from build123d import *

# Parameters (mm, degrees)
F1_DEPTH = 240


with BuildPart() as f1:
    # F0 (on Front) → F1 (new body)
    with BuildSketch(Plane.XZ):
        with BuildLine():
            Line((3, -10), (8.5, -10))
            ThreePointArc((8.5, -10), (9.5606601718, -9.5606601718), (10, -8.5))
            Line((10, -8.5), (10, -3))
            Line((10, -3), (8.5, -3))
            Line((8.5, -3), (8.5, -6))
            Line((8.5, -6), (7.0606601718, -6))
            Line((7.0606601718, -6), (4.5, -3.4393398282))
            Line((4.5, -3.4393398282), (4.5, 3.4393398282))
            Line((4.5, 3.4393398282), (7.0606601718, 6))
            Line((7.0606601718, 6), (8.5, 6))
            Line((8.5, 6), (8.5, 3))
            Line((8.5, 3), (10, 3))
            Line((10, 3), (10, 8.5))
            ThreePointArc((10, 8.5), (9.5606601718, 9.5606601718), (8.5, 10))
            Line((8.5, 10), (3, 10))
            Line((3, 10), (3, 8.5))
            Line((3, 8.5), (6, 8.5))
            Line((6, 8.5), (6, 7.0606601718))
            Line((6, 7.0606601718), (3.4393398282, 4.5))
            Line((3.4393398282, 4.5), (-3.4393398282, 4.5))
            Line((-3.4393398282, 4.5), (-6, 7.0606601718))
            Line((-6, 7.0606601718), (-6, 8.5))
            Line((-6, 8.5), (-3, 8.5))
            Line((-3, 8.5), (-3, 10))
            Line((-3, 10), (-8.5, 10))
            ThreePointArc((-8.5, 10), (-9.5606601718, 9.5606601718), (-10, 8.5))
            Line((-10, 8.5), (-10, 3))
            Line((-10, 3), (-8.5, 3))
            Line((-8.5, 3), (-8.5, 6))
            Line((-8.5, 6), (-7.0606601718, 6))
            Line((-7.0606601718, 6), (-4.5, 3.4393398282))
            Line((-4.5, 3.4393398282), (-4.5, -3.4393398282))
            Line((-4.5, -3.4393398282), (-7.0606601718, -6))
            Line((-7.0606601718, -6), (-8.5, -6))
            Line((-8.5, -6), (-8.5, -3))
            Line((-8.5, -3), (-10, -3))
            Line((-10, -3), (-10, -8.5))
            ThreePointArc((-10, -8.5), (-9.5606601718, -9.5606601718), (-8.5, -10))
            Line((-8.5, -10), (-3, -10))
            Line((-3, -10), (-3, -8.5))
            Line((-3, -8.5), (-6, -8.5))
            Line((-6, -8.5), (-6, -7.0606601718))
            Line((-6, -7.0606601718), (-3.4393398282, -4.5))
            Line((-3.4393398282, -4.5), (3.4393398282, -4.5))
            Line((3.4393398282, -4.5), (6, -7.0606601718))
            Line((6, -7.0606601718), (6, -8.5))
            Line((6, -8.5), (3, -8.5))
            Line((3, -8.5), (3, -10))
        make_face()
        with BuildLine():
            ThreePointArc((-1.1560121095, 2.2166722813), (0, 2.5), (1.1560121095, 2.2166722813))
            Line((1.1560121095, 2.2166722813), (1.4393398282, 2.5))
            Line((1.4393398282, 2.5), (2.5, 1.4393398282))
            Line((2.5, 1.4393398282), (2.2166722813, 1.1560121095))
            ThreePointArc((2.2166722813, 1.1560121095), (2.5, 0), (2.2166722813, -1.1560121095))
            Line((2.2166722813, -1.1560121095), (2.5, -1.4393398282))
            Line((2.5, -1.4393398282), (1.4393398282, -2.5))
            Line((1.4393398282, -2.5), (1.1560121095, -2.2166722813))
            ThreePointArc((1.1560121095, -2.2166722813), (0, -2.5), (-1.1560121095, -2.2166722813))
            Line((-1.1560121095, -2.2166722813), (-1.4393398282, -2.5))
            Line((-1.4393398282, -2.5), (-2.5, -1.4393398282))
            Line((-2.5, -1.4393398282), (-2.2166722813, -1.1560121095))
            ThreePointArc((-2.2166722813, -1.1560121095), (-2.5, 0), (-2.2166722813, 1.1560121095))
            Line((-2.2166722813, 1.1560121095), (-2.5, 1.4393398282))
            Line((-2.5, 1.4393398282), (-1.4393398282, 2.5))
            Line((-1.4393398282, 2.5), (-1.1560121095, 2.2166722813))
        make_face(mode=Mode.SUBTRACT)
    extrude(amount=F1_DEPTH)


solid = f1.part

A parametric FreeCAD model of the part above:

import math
import FreeCAD as App
import Part
import Sketcher

V = App.Vector
Q = App.Units.Quantity

doc = App.newDocument("Part")
body = doc.addObject("PartDesign::Body", "Body")

# Sketch on XZ plane
sketch1 = body.newObject("Sketcher::SketchObject", "Sketch")
sketch1.AttachmentSupport = (doc.getObject("XZ_Plane"), [""])
sketch1.MapMode = "FlatFace"
sketch1.addGeometry([
    Part.LineSegment(V(3, -10, 0), V(8.5, -10, 0)),  # 0
    Part.ArcOfCircle(Part.Circle(V(8.5, -8.5, 0), V(0, 0, 1), 1.5), math.radians(-90), math.radians(0)),  # 1
    Part.LineSegment(V(10, -8.5, 0), V(10, -3, 0)),  # 2
    Part.LineSegment(V(10, -3, 0), V(8.5, -3, 0)),  # 3
    Part.LineSegment(V(8.5, -3, 0), V(8.5, -6, 0)),  # 4
    Part.LineSegment(V(8.5, -6, 0), V(7.06, -6, 0)),  # 5
    Part.LineSegment(V(7.06, -6, 0), V(4.5, -3.44, 0)),  # 6
    Part.LineSegment(V(4.5, -3.44, 0), V(4.5, 3.44, 0)),  # 7
    Part.LineSegment(V(4.5, 3.44, 0), V(7.06, 6, 0)),  # 8
    Part.LineSegment(V(7.06, 6, 0), V(8.5, 6, 0)),  # 9
    Part.LineSegment(V(8.5, 6, 0), V(8.5, 3, 0)),  # 10
    Part.LineSegment(V(8.5, 3, 0), V(10, 3, 0)),  # 11
    Part.LineSegment(V(10, 3, 0), V(10, 8.5, 0)),  # 12
    Part.ArcOfCircle(Part.Circle(V(8.5, 8.5, 0), V(0, 0, 1), 1.5), math.radians(0), math.radians(90)),  # 13
    Part.LineSegment(V(8.5, 10, 0), V(3, 10, 0)),  # 14
    Part.LineSegment(V(3, 10, 0), V(3, 8.5, 0)),  # 15
    Part.LineSegment(V(3, 8.5, 0), V(6, 8.5, 0)),  # 16
    Part.LineSegment(V(6, 8.5, 0), V(6, 7.06, 0)),  # 17
    Part.LineSegment(V(6, 7.06, 0), V(3.44, 4.5, 0)),  # 18
    Part.LineSegment(V(3.44, 4.5, 0), V(-3.44, 4.5, 0)),  # 19
    Part.LineSegment(V(-3.44, 4.5, 0), V(-6, 7.06, 0)),  # 20
    Part.LineSegment(V(-6, 7.06, 0), V(-6, 8.5, 0)),  # 21
    Part.LineSegment(V(-6, 8.5, 0), V(-3, 8.5, 0)),  # 22
    Part.LineSegment(V(-3, 8.5, 0), V(-3, 10, 0)),  # 23
    Part.LineSegment(V(-3, 10, 0), V(-8.5, 10, 0)),  # 24
    Part.ArcOfCircle(Part.Circle(V(-8.5, 8.5, 0), V(0, 0, 1), 1.5), math.radians(90), math.radians(180)),  # 25
    Part.LineSegment(V(-10, 8.5, 0), V(-10, 3, 0)),  # 26
    Part.LineSegment(V(-10, 3, 0), V(-8.5, 3, 0)),  # 27
    Part.LineSegment(V(-8.5, 3, 0), V(-8.5, 6, 0)),  # 28
    Part.LineSegment(V(-8.5, 6, 0), V(-7.06, 6, 0)),  # 29
    Part.LineSegment(V(-7.06, 6, 0), V(-4.5, 3.44, 0)),  # 30
    Part.LineSegment(V(-4.5, 3.44, 0), V(-4.5, -3.44, 0)),  # 31
    Part.LineSegment(V(-4.5, -3.44, 0), V(-7.06, -6, 0)),  # 32
    Part.LineSegment(V(-7.06, -6, 0), V(-8.5, -6, 0)),  # 33
    Part.LineSegment(V(-8.5, -6, 0), V(-8.5, -3, 0)),  # 34
    Part.LineSegment(V(-8.5, -3, 0), V(-10, -3, 0)),  # 35
    Part.LineSegment(V(-10, -3, 0), V(-10, -8.5, 0)),  # 36
    Part.ArcOfCircle(Part.Circle(V(-8.5, -8.5, 0), V(0, 0, 1), 1.5), math.radians(180), math.radians(270)),  # 37
    Part.LineSegment(V(-8.5, -10, 0), V(-3, -10, 0)),  # 38
    Part.LineSegment(V(-3, -10, 0), V(-3, -8.5, 0)),  # 39
    Part.LineSegment(V(-3, -8.5, 0), V(-6, -8.5, 0)),  # 40
    Part.LineSegment(V(-6, -8.5, 0), V(-6, -7.06, 0)),  # 41
    Part.LineSegment(V(-6, -7.06, 0), V(-3.44, -4.5, 0)),  # 42
    Part.LineSegment(V(-3.44, -4.5, 0), V(3.44, -4.5, 0)),  # 43
    Part.LineSegment(V(3.44, -4.5, 0), V(6, -7.06, 0)),  # 44
    Part.LineSegment(V(6, -7.06, 0), V(6, -8.5, 0)),  # 45
    Part.LineSegment(V(6, -8.5, 0), V(3, -8.5, 0)),  # 46
    Part.LineSegment(V(3, -8.5, 0), V(3, -10, 0)),  # 47
    Part.LineSegment(V(-1.44, 2.5, 0), V(-1.16, 2.22, 0)),  # 48
    Part.ArcOfCircle(Part.Circle(V(0, 0, 0), V(0, 0, 1), 2.5), math.radians(62), math.radians(118)),  # 49
    Part.LineSegment(V(1.16, 2.22, 0), V(1.44, 2.5, 0)),  # 50
    Part.LineSegment(V(1.44, 2.5, 0), V(2.5, 1.44, 0)),  # 51
    Part.LineSegment(V(2.5, 1.44, 0), V(2.22, 1.16, 0)),  # 52
    Part.ArcOfCircle(Part.Circle(V(0, 0, 0), V(0, 0, 1), 2.5), math.radians(-28), math.radians(28)),  # 53
    Part.LineSegment(V(2.22, -1.16, 0), V(2.5, -1.44, 0)),  # 54
    Part.LineSegment(V(2.5, -1.44, 0), V(1.44, -2.5, 0)),  # 55
    Part.LineSegment(V(1.44, -2.5, 0), V(1.16, -2.22, 0)),  # 56
    Part.ArcOfCircle(Part.Circle(V(0, 0, 0), V(0, 0, 1), 2.5), math.radians(-118), math.radians(-62)),  # 57
    Part.LineSegment(V(-1.16, -2.22, 0), V(-1.44, -2.5, 0)),  # 58
    Part.LineSegment(V(-1.44, -2.5, 0), V(-2.5, -1.44, 0)),  # 59
    Part.LineSegment(V(-2.5, -1.44, 0), V(-2.22, -1.16, 0)),  # 60
    Part.ArcOfCircle(Part.Circle(V(0, 0, 0), V(0, 0, 1), 2.5), math.radians(152), math.radians(208)),  # 61
    Part.LineSegment(V(-2.22, 1.16, 0), V(-2.5, 1.44, 0)),  # 62
    Part.LineSegment(V(-2.5, 1.44, 0), V(-1.44, 2.5, 0)),  # 63
], False)
sketch1.addConstraint([
    Sketcher.Constraint("Tangent", 0, 2, 1, 1),
    Sketcher.Constraint("Tangent", 1, 2, 2, 1),
    Sketcher.Constraint("Coincident", 2, 2, 3, 1),
    Sketcher.Constraint("Coincident", 3, 2, 4, 1),
    Sketcher.Constraint("Coincident", 4, 2, 5, 1),
    Sketcher.Constraint("Coincident", 5, 2, 6, 1),
    Sketcher.Constraint("Coincident", 6, 2, 7, 1),
    Sketcher.Constraint("Coincident", 7, 2, 8, 1),
    Sketcher.Constraint("Coincident", 8, 2, 9, 1),
    Sketcher.Constraint("Coincident", 9, 2, 10, 1),
    Sketcher.Constraint("Coincident", 10, 2, 11, 1),
    Sketcher.Constraint("Coincident", 11, 2, 12, 1),
    Sketcher.Constraint("Tangent", 12, 2, 13, 1),
    Sketcher.Constraint("Tangent", 13, 2, 14, 1),
    Sketcher.Constraint("Coincident", 14, 2, 15, 1),
    Sketcher.Constraint("Coincident", 15, 2, 16, 1),
    Sketcher.Constraint("Coincident", 16, 2, 17, 1),
    Sketcher.Constraint("Coincident", 17, 2, 18, 1),
    Sketcher.Constraint("Coincident", 18, 2, 19, 1),
    Sketcher.Constraint("Coincident", 19, 2, 20, 1),
    Sketcher.Constraint("Coincident", 20, 2, 21, 1),
    Sketcher.Constraint("Coincident", 21, 2, 22, 1),
    Sketcher.Constraint("Coincident", 22, 2, 23, 1),
    Sketcher.Constraint("Coincident", 23, 2, 24, 1),
    Sketcher.Constraint("Tangent", 24, 2, 25, 1),
    Sketcher.Constraint("Tangent", 25, 2, 26, 1),
    Sketcher.Constraint("Coincident", 26, 2, 27, 1),
    Sketcher.Constraint("Coincident", 27, 2, 28, 1),
    Sketcher.Constraint("Coincident", 28, 2, 29, 1),
    Sketcher.Constraint("Coincident", 29, 2, 30, 1),
    Sketcher.Constraint("Coincident", 30, 2, 31, 1),
    Sketcher.Constraint("Coincident", 31, 2, 32, 1),
    Sketcher.Constraint("Coincident", 32, 2, 33, 1),
    Sketcher.Constraint("Coincident", 33, 2, 34, 1),
    Sketcher.Constraint("Coincident", 34, 2, 35, 1),
    Sketcher.Constraint("Coincident", 35, 2, 36, 1),
    Sketcher.Constraint("Tangent", 36, 2, 37, 1),
    Sketcher.Constraint("Tangent", 37, 2, 38, 1),
    Sketcher.Constraint("Coincident", 38, 2, 39, 1),
    Sketcher.Constraint("Coincident", 39, 2, 40, 1),
    Sketcher.Constraint("Coincident", 40, 2, 41, 1),
    Sketcher.Constraint("Coincident", 41, 2, 42, 1),
    Sketcher.Constraint("Coincident", 42, 2, 43, 1),
    Sketcher.Constraint("Coincident", 43, 2, 44, 1),
    Sketcher.Constraint("Coincident", 44, 2, 45, 1),
    Sketcher.Constraint("Coincident", 45, 2, 46, 1),
    Sketcher.Constraint("Coincident", 46, 2, 47, 1),
    Sketcher.Constraint("Coincident", 47, 2, 0, 1),
    Sketcher.Constraint("Coincident", 48, 2, 49, 2),
    Sketcher.Constraint("Coincident", 49, 1, 50, 1),
    Sketcher.Constraint("Coincident", 50, 2, 51, 1),
    Sketcher.Constraint("Coincident", 51, 2, 52, 1),
    Sketcher.Constraint("Coincident", 52, 2, 53, 2),
    Sketcher.Constraint("Coincident", 53, 1, 54, 1),
    Sketcher.Constraint("Coincident", 54, 2, 55, 1),
    Sketcher.Constraint("Coincident", 55, 2, 56, 1),
    Sketcher.Constraint("Coincident", 56, 2, 57, 2),
    Sketcher.Constraint("Coincident", 57, 1, 58, 1),
    Sketcher.Constraint("Coincident", 58, 2, 59, 1),
    Sketcher.Constraint("Coincident", 59, 2, 60, 1),
    Sketcher.Constraint("Coincident", 60, 2, 61, 2),
    Sketcher.Constraint("Coincident", 61, 1, 62, 1),
    Sketcher.Constraint("Coincident", 62, 2, 63, 1),
    Sketcher.Constraint("Coincident", 63, 2, 48, 1),
    Sketcher.Constraint("Horizontal", 0),
    Sketcher.Constraint("Vertical", 2),
    Sketcher.Constraint("Horizontal", 3),
    Sketcher.Constraint("Vertical", 4),
    Sketcher.Constraint("Horizontal", 5),
    Sketcher.Constraint("Vertical", 7),
    Sketcher.Constraint("Horizontal", 9),
    Sketcher.Constraint("Vertical", 10),
    Sketcher.Constraint("Horizontal", 11),
    Sketcher.Constraint("Vertical", 12),
    Sketcher.Constraint("Horizontal", 14),
    Sketcher.Constraint("Vertical", 15),
    Sketcher.Constraint("Horizontal", 16),
    Sketcher.Constraint("Vertical", 17),
    Sketcher.Constraint("Horizontal", 19),
    Sketcher.Constraint("Vertical", 21),
    Sketcher.Constraint("Horizontal", 22),
    Sketcher.Constraint("Vertical", 23),
    Sketcher.Constraint("Horizontal", 24),
    Sketcher.Constraint("Vertical", 26),
    Sketcher.Constraint("Horizontal", 27),
    Sketcher.Constraint("Vertical", 28),
    Sketcher.Constraint("Horizontal", 29),
    Sketcher.Constraint("Vertical", 31),
    Sketcher.Constraint("Horizontal", 33),
    Sketcher.Constraint("Vertical", 34),
    Sketcher.Constraint("Horizontal", 35),
    Sketcher.Constraint("Vertical", 36),
    Sketcher.Constraint("Horizontal", 38),
    Sketcher.Constraint("Vertical", 39),
    Sketcher.Constraint("Horizontal", 40),
    Sketcher.Constraint("Vertical", 41),
    Sketcher.Constraint("Horizontal", 43),
    Sketcher.Constraint("Vertical", 45),
    Sketcher.Constraint("Horizontal", 46),
    Sketcher.Constraint("Vertical", 47),
    Sketcher.Constraint("Coincident", 49, 3, -1, 1),
    Sketcher.Constraint("Coincident", 53, 3, -1, 1),
    Sketcher.Constraint("Coincident", 57, 3, -1, 1),
    Sketcher.Constraint("Coincident", 61, 3, -1, 1),
    Sketcher.Constraint("Equal", 1, 13),
    Sketcher.Constraint("Equal", 13, 25),
    Sketcher.Constraint("Equal", 25, 37),
    Sketcher.Constraint("Equal", 49, 53),
    Sketcher.Constraint("Equal", 53, 57),
    Sketcher.Constraint("Equal", 57, 61),
    Sketcher.Constraint("Symmetric", 1, 3, 25, 3, -1, 1),
    Sketcher.Constraint("Symmetric", 13, 3, 37, 3, -1, 1),
    Sketcher.Constraint("Symmetric", 3, 2, 27, 2, -1, 1),
    Sketcher.Constraint("Symmetric", 5, 2, 29, 2, -1, 1),
    Sketcher.Constraint("Symmetric", 6, 2, 30, 2, -1, 1),
    Sketcher.Constraint("Symmetric", 8, 2, 32, 2, -1, 1),
    Sketcher.Constraint("Symmetric", 10, 2, 34, 2, -1, 1),
    Sketcher.Constraint("Symmetric", 15, 2, 39, 2, -1, 1),
    Sketcher.Constraint("Symmetric", 17, 2, 41, 2, -1, 1),
    Sketcher.Constraint("Symmetric", 18, 2, 42, 2, -1, 1),
    Sketcher.Constraint("Symmetric", 20, 2, 44, 2, -1, 1),
    Sketcher.Constraint("Symmetric", 22, 2, 46, 2, -1, 1),
    Sketcher.Constraint("Symmetric", 50, 2, 58, 2, -1, 1),
    Sketcher.Constraint("Symmetric", 51, 2, 59, 2, -1, 1),
    Sketcher.Constraint("Symmetric", 54, 2, 62, 2, -1, 1),
    Sketcher.Constraint("Symmetric", 55, 2, 63, 2, -1, 1),
    Sketcher.Constraint("Symmetric", 13, 3, 25, 3, -2),
    Sketcher.Constraint("Symmetric", 17, 2, 20, 2, -2),
    Sketcher.Constraint("Symmetric", 15, 2, 22, 2, -2),
    Sketcher.Constraint("Symmetric", 10, 2, 27, 2, -2),
    Sketcher.Constraint("Symmetric", 8, 2, 29, 2, -2),
    Sketcher.Constraint("Symmetric", 55, 2, 58, 2, -2),
    Sketcher.Constraint("Symmetric", 54, 2, 59, 2, -2),
    Sketcher.Constraint("Perpendicular", 6, 8),
    Sketcher.Constraint("Parallel", 8, 18),
    Sketcher.Constraint("Perpendicular", 18, 20),
    Sketcher.Constraint("Perpendicular", 30, 32),
    Sketcher.Constraint("Perpendicular", 42, 44),
    Sketcher.Constraint("Parallel", 44, 48),
    Sketcher.Constraint("Perpendicular", 48, 50),
    Sketcher.Constraint("Perpendicular", 50, 51),
    Sketcher.Constraint("Perpendicular", 51, 52),
    Sketcher.Constraint("Perpendicular", 52, 54),
    Sketcher.Constraint("Perpendicular", 54, 55),
    Sketcher.Constraint("Perpendicular", 55, 56),
    Sketcher.Constraint("Perpendicular", 56, 58),
    Sketcher.Constraint("Perpendicular", 59, 60),
    Sketcher.Constraint("Perpendicular", 60, 62),
    Sketcher.Constraint("Horizontal", 12, 2, 15, 2),
    Sketcher.Constraint("Vertical", 0, 2, 3, 2),
    Sketcher.Constraint("Equal", 38, 2),
    Sketcher.Constraint("Equal", 46, 4),
    Sketcher.Constraint("Equal", 43, 7),
    Sketcher.Constraint("Equal", 33, 17),
    Sketcher.Constraint("Equal", 8, 18),
    Sketcher.Constraint("Equal", 50, 52),
    Sketcher.Constraint("Radius", 1, Q("1.5 mm")),
    Sketcher.Constraint("Radius", 49, Q("2.5 mm")),
    Sketcher.Constraint("DistanceX", 16, 1, 16, 2, Q("3 mm")),
    Sketcher.Constraint("DistanceX", 0, 1, 0, 2, Q("5.5 mm")),
    Sketcher.Constraint("DistanceY", 0, 2, -1, 1, Q("10 mm")),
    Sketcher.Constraint("Distance", 51, Q("1.5 mm")),
    Sketcher.Constraint("DistanceX", -1, 1, 6, 2, Q("4.5 mm")),
    Sketcher.Constraint("DistanceY", -1, 1, 50, 2, Q("2.5 mm")),
    Sketcher.Constraint("DistanceX", 5, 2, 5, 1, Q("1.43934 mm")),
])
pad1 = body.newObject("PartDesign::Pad", "Pad")
pad1.Profile = sketch1
pad1.Length = 240

doc.recompute()
